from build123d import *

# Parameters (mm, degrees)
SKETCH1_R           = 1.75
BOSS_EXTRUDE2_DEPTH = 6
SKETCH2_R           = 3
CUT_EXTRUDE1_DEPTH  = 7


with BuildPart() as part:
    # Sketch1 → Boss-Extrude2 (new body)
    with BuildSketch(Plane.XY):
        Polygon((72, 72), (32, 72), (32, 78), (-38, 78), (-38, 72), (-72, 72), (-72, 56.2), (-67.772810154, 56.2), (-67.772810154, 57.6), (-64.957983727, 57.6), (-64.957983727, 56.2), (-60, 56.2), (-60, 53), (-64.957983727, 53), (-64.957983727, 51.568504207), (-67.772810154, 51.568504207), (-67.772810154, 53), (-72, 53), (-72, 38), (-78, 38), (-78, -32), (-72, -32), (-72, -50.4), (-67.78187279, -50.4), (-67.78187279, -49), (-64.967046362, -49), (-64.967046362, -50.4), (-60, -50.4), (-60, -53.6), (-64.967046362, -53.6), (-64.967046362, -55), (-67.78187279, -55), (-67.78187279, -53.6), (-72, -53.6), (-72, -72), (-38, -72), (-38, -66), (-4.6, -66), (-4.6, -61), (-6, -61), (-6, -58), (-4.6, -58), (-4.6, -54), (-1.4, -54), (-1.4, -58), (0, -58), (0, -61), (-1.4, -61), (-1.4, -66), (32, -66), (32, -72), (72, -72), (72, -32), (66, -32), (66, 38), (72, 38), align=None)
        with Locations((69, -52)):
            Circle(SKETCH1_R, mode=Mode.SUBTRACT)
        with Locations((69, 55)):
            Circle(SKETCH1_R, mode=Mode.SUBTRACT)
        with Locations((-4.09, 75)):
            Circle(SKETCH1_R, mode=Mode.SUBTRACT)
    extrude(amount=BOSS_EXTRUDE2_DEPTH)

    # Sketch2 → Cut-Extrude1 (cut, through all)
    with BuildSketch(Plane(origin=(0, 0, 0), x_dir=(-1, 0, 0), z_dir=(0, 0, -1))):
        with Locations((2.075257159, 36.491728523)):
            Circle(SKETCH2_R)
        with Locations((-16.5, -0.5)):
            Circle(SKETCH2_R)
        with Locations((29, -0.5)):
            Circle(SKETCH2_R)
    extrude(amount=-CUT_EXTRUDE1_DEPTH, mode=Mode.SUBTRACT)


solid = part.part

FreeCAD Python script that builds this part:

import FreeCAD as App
import Part
import Sketcher

V = App.Vector
Q = App.Units.Quantity

doc = App.newDocument("Part")
body = doc.addObject("PartDesign::Body", "Body")

sketch1 = body.newObject("Sketcher::SketchObject", "Sketch")
sketch1.AttachmentSupport = (doc.getObject("XY_Plane"), [""])
sketch1.MapMode = "FlatFace"
sketch1.addGeometry(Part.LineSegment(V(72, 72, 0), V(32, 72, 0)), False)
sketch1.addGeometry(Part.LineSegment(V(32, 72, 0), V(32, 78, 0)), False)
sketch1.addGeometry(Part.LineSegment(V(32, 78, 0), V(-38, 78, 0)), False)
sketch1.addGeometry(Part.LineSegment(V(-38, 78, 0), V(-38, 72, 0)), False)
sketch1.addGeometry(Part.LineSegment(V(-38, 72, 0), V(-72, 72, 0)), False)
sketch1.addGeometry(Part.LineSegment(V(-72, 72, 0), V(-72, 56.2, 0)), False)
sketch1.addGeometry(Part.LineSegment(V(-72, 56.2, 0), V(-67.8, 56.2, 0)), False)
sketch1.addGeometry(Part.LineSegment(V(-67.8, 56.2, 0), V(-67.8, 57.6, 0)), False)
sketch1.addGeometry(Part.LineSegment(V(-67.8, 57.6, 0), V(-65, 57.6, 0)), False)
sketch1.addGeometry(Part.LineSegment(V(-65, 57.6, 0), V(-65, 56.2, 0)), False)
sketch1.addGeometry(Part.LineSegment(V(-65, 56.2, 0), V(-60, 56.2, 0)), False)
sketch1.addGeometry(Part.LineSegment(V(-60, 56.2, 0), V(-60, 53, 0)), False)
sketch1.addGeometry(Part.LineSegment(V(-60, 53, 0), V(-65, 53, 0)), False)
sketch1.addGeometry(Part.LineSegment(V(-65, 53, 0), V(-65, 51.6, 0)), False)
sketch1.addGeometry(Part.LineSegment(V(-65, 51.6, 0), V(-67.8, 51.6, 0)), False)
sketch1.addGeometry(Part.LineSegment(V(-67.8, 51.6, 0), V(-67.8, 53, 0)), False)
sketch1.addGeometry(Part.LineSegment(V(-67.8, 53, 0), V(-72, 53, 0)), False)
sketch1.addGeometry(Part.LineSegment(V(-72, 53, 0), V(-72, 38, 0)), False)
sketch1.addGeometry(Part.LineSegment(V(-72, 38, 0), V(-78, 38, 0)), False)
sketch1.addGeometry(Part.LineSegment(V(-78, 38, 0), V(-78, -32, 0)), False)
sketch1.addGeometry(Part.LineSegment(V(-78, -32, 0), V(-72, -32, 0)), False)
sketch1.addGeometry(Part.LineSegment(V(-72, -32, 0), V(-72, -50.4, 0)), False)
sketch1.addGeometry(Part.LineSegment(V(-72, -50.4, 0), V(-67.8, -50.4, 0)), False)
sketch1.addGeometry(Part.LineSegment(V(-67.8, -50.4, 0), V(-67.8, -49, 0)), False)
sketch1.addGeometry(Part.LineSegment(V(-67.8, -49, 0), V(-65, -49, 0)), False)
sketch1.addGeometry(Part.LineSegment(V(-65, -49, 0), V(-65, -50.4, 0)), False)
sketch1.addGeometry(Part.LineSegment(V(-65, -50.4, 0), V(-60, -50.4, 0)), False)
sketch1.addGeometry(Part.LineSegment(V(-60, -50.4, 0), V(-60, -53.6, 0)), False)
sketch1.addGeometry(Part.LineSegment(V(-60, -53.6, 0), V(-65, -53.6, 0)), False)
sketch1.addGeometry(Part.LineSegment(V(-65, -53.6, 0), V(-65, -55, 0)), False)
sketch1.addGeometry(Part.LineSegment(V(-65, -55, 0), V(-67.8, -55, 0)), False)
sketch1.addGeometry(Part.LineSegment(V(-67.8, -55, 0), V(-67.8, -53.6, 0)), False)
sketch1.addGeometry(Part.LineSegment(V(-67.8, -53.6, 0), V(-72, -53.6, 0)), False)
sketch1.addGeometry(Part.LineSegment(V(-72, -53.6, 0), V(-72, -72, 0)), False)
sketch1.addGeometry(Part.LineSegment(V(-72, -72, 0), V(-38, -72, 0)), False)
sketch1.addGeometry(Part.LineSegment(V(-38, -72, 0), V(-38, -66, 0)), False)
sketch1.addGeometry(Part.LineSegment(V(-38, -66, 0), V(-4.6, -66, 0)), False)
sketch1.addGeometry(Part.LineSegment(V(-4.6, -66, 0), V(-4.6, -61, 0)), False)
sketch1.addGeometry(Part.LineSegment(V(-4.6, -61, 0), V(-6, -61, 0)), False)
sketch1.addGeometry(Part.LineSegment(V(-6, -61, 0), V(-6, -58, 0)), False)
sketch1.addGeometry(Part.LineSegment(V(-6, -58, 0), V(-4.6, -58, 0)), False)
sketch1.addGeometry(Part.LineSegment(V(-4.6, -58, 0), V(-4.6, -54, 0)), False)
sketch1.addGeometry(Part.LineSegment(V(-4.6, -54, 0), V(-1.4, -54, 0)), False)
sketch1.addGeometry(Part.LineSegment(V(-1.4, -54, 0), V(-1.4, -58, 0)), False)
sketch1.addGeometry(Part.LineSegment(V(-1.4, -58, 0), V(0, -58, 0)), False)
sketch1.addGeometry(Part.LineSegment(V(0, -58, 0), V(0, -61, 0)), False)
sketch1.addGeometry(Part.LineSegment(V(0, -61, 0), V(-1.4, -61, 0)), False)
sketch1.addGeometry(Part.LineSegment(V(-1.4, -61, 0), V(-1.4, -66, 0)), False)
sketch1.addGeometry(Part.LineSegment(V(-1.4, -66, 0), V(32, -66, 0)), False)
sketch1.addGeometry(Part.LineSegment(V(32, -66, 0), V(32, -72, 0)), False)
sketch1.addGeometry(Part.LineSegment(V(32, -72, 0), V(72, -72, 0)), False)
sketch1.addGeometry(Part.LineSegment(V(72, -72, 0), V(72, -32, 0)), False)
sketch1.addGeometry(Part.LineSegment(V(72, -32, 0), V(66, -32, 0)), False)
sketch1.addGeometry(Part.LineSegment(V(66, -32, 0), V(66, 38, 0)), False)
sketch1.addGeometry(Part.LineSegment(V(66, 38, 0), V(72, 38, 0)), False)
sketch1.addGeometry(Part.LineSegment(V(72, 38, 0), V(72, 72, 0)), False)
sketch1.addGeometry(Part.Circle(V(69, -52, 0), V(0, 0, 1), 1.8), False)
sketch1.addGeometry(Part.Circle(V(-4.1, 75, 0), V(0, 0, 1), 1.8), False)
sketch1.addGeometry(Part.Circle(V(69, 55, 0), V(0, 0, 1), 1.8), False)
sketch1.addConstraint(Sketcher.Constraint("Coincident", 0, 2, 1, 1))
sketch1.addConstraint(Sketcher.Constraint("Coincident", 1, 2, 2, 1))
sketch1.addConstraint(Sketcher.Constraint("Coincident", 2, 2, 3, 1))
sketch1.addConstraint(Sketcher.Constraint("Coincident", 3, 2, 4, 1))
sketch1.addConstraint(Sketcher.Constraint("Coincident", 4, 2, 5, 1))
sketch1.addConstraint(Sketcher.Constraint("Coincident", 5, 2, 6, 1))
sketch1.addConstraint(Sketcher.Constraint("Coincident", 6, 2, 7, 1))
sketch1.addConstraint(Sketcher.Constraint("Coincident", 7, 2, 8, 1))
sketch1.addConstraint(Sketcher.Constraint("Coincident", 8, 2, 9, 1))
sketch1.addConstraint(Sketcher.Constraint("Coincident", 9, 2, 10, 1))
sketch1.addConstraint(Sketcher.Constraint("Coincident", 10, 2, 11, 1))
sketch1.addConstraint(Sketcher.Constraint("Coincident", 11, 2, 12, 1))
sketch1.addConstraint(Sketcher.Constraint("Coincident", 12, 2, 13, 1))
sketch1.addConstraint(Sketcher.Constraint("Coincident", 13, 2, 14, 1))
sketch1.addConstraint(Sketcher.Constraint("Coincident", 14, 2, 15, 1))
sketch1.addConstraint(Sketcher.Constraint("Coincident", 15, 2, 16, 1))
sketch1.addConstraint(Sketcher.Constraint("Coincident", 16, 2, 17, 1))
sketch1.addConstraint(Sketcher.Constraint("Coincident", 17, 2, 18, 1))
sketch1.addConstraint(Sketcher.Constraint("Coincident", 18, 2, 19, 1))
sketch1.addConstraint(Sketcher.Constraint("Coincident", 19, 2, 20, 1))
sketch1.addConstraint(Sketcher.Constraint("Coincident", 20, 2, 21, 1))
sketch1.addConstraint(Sketcher.Constraint("Coincident", 21, 2, 22, 1))
sketch1.addConstraint(Sketcher.Constraint("Coincident", 22, 2, 23, 1))
sketch1.addConstraint(Sketcher.Constraint("Coincident", 23, 2, 24, 1))
sketch1.addConstraint(Sketcher.Constraint("Coincident", 24, 2, 25, 1))
sketch1.addConstraint(Sketcher.Constraint("Coincident", 25, 2, 26, 1))
sketch1.addConstraint(Sketcher.Constraint("Coincident", 26, 2, 27, 1))
sketch1.addConstraint(Sketcher.Constraint("Coincident", 27, 2, 28, 1))
sketch1.addConstraint(Sketcher.Constraint("Coincident", 28, 2, 29, 1))
sketch1.addConstraint(Sketcher.Constraint("Coincident", 29, 2, 30, 1))
sketch1.addConstraint(Sketcher.Constraint("Coincident", 30, 2, 31, 1))
sketch1.addConstraint(Sketcher.Constraint("Coincident", 31, 2, 32, 1))
sketch1.addConstraint(Sketcher.Constraint("Coincident", 32, 2, 33, 1))
sketch1.addConstraint(Sketcher.Constraint("Coincident", 33, 2, 34, 1))
sketch1.addConstraint(Sketcher.Constraint("Coincident", 34, 2, 35, 1))
sketch1.addConstraint(Sketcher.Constraint("Coincident", 35, 2, 36, 1))
sketch1.addConstraint(Sketcher.Constraint("Coincident", 36, 2, 37, 1))
sketch1.addConstraint(Sketcher.Constraint("Coincident", 37, 2, 38, 1))
sketch1.addConstraint(Sketcher.Constraint("Coincident", 38, 2, 39, 1))
sketch1.addConstraint(Sketcher.Constraint("Coincident", 39, 2, 40, 1))
sketch1.addConstraint(Sketcher.Constraint("Coincident", 40, 2, 41, 1))
sketch1.addConstraint(Sketcher.Constraint("Coincident", 41, 2, 42, 1))
sketch1.addConstraint(Sketcher.Constraint("Coincident", 42, 2, 43, 1))
sketch1.addConstraint(Sketcher.Constraint("Coincident", 43, 2, 44, 1))
sketch1.addConstraint(Sketcher.Constraint("Coincident", 44, 2, 45, 1))
sketch1.addConstraint(Sketcher.Constraint("Coincident", 45, 2, 46, 1))
sketch1.addConstraint(Sketcher.Constraint("Coincident", 46, 2, 47, 1))
sketch1.addConstraint(Sketcher.Constraint("Coincident", 47, 2, 48, 1))
sketch1.addConstraint(Sketcher.Constraint("Coincident", 48, 2, 49, 1))
sketch1.addConstraint(Sketcher.Constraint("Coincident", 49, 2, 50, 1))
sketch1.addConstraint(Sketcher.Constraint("Coincident", 50, 2, 51, 1))
sketch1.addConstraint(Sketcher.Constraint("Coincident", 51, 2, 52, 1))
sketch1.addConstraint(Sketcher.Constraint("Coincident", 52, 2, 53, 1))
sketch1.addConstraint(Sketcher.Constraint("Coincident", 53, 2, 54, 1))
sketch1.addConstraint(Sketcher.Constraint("Coincident", 54, 2, 55, 1))
sketch1.addConstraint(Sketcher.Constraint("Coincident", 55, 2, 0, 1))
sketch1.addConstraint(Sketcher.Constraint("Horizontal", 0))
sketch1.addConstraint(Sketcher.Constraint("Vertical", 1))
sketch1.addConstraint(Sketcher.Constraint("Horizontal", 2))
sketch1.addConstraint(Sketcher.Constraint("Vertical", 3))
sketch1.addConstraint(Sketcher.Constraint("Horizontal", 4))
sketch1.addConstraint(Sketcher.Constraint("Vertical", 5))
sketch1.addConstraint(Sketcher.Constraint("Horizontal", 6))
sketch1.addConstraint(Sketcher.Constraint("Vertical", 7))
sketch1.addConstraint(Sketcher.Constraint("Horizontal", 8))
sketch1.addConstraint(Sketcher.Constraint("Vertical", 9))
sketch1.addConstraint(Sketcher.Constraint("Horizontal", 10))
sketch1.addConstraint(Sketcher.Constraint("Vertical", 11))
sketch1.addConstraint(Sketcher.Constraint("Horizontal", 12))
sketch1.addConstraint(Sketcher.Constraint("Vertical", 13))
sketch1.addConstraint(Sketcher.Constraint("Horizontal", 14))
sketch1.addConstraint(Sketcher.Constraint("Vertical", 15))
sketch1.addConstraint(Sketcher.Constraint("Horizontal", 16))
sketch1.addConstraint(Sketcher.Constraint("Vertical", 17))
sketch1.addConstraint(Sketcher.Constraint("Horizontal", 18))
sketch1.addConstraint(Sketcher.Constraint("Vertical", 19))
sketch1.addConstraint(Sketcher.Constraint("Horizontal", 20))
sketch1.addConstraint(Sketcher.Constraint("Vertical", 21))
sketch1.addConstraint(Sketcher.Constraint("Horizontal", 22))
sketch1.addConstraint(Sketcher.Constraint("Vertical", 23))
sketch1.addConstraint(Sketcher.Constraint("Horizontal", 24))
sketch1.addConstraint(Sketcher.Constraint("Vertical", 25))
sketch1.addConstraint(Sketcher.Constraint("Horizontal", 26))
sketch1.addConstraint(Sketcher.Constraint("Vertical", 27))
sketch1.addConstraint(Sketcher.Constraint("Horizontal", 28))
sketch1.addConstraint(Sketcher.Constraint("Vertical", 29))
sketch1.addConstraint(Sketcher.Constraint("Horizontal", 30))
sketch1.addConstraint(Sketcher.Constraint("Vertical", 31))
sketch1.addConstraint(Sketcher.Constraint("Horizontal", 32))
sketch1.addConstraint(Sketcher.Constraint("Vertical", 33))
sketch1.addConstraint(Sketcher.Constraint("Horizontal", 34))
sketch1.addConstraint(Sketcher.Constraint("Vertical", 35))
sketch1.addConstraint(Sketcher.Constraint("Horizontal", 36))
sketch1.addConstraint(Sketcher.Constraint("Vertical", 37))
sketch1.addConstraint(Sketcher.Constraint("Horizontal", 38))
sketch1.addConstraint(Sketcher.Constraint("Vertical", 39))
sketch1.addConstraint(Sketcher.Constraint("Horizontal", 40))
sketch1.addConstraint(Sketcher.Constraint("Vertical", 41))
sketch1.addConstraint(Sketcher.Constraint("Horizontal", 42))
sketch1.addConstraint(Sketcher.Constraint("Vertical", 43))
sketch1.addConstraint(Sketcher.Constraint("Horizontal", 44))
sketch1.addConstraint(Sketcher.Constraint("Vertical", 45))
sketch1.addConstraint(Sketcher.Constraint("Horizontal", 46))
sketch1.addConstraint(Sketcher.Constraint("Vertical", 47))
sketch1.addConstraint(Sketcher.Constraint("Horizontal", 48))
sketch1.addConstraint(Sketcher.Constraint("Vertical", 49))
sketch1.addConstraint(Sketcher.Constraint("Horizontal", 50))
sketch1.addConstraint(Sketcher.Constraint("Vertical", 51))
sketch1.addConstraint(Sketcher.Constraint("Horizontal", 52))
sketch1.addConstraint(Sketcher.Constraint("Vertical", 53))
sketch1.addConstraint(Sketcher.Constraint("Horizontal", 54))
sketch1.addConstraint(Sketcher.Constraint("Vertical", 55))
sketch1.addConstraint(Sketcher.Constraint("Equal", 56, 57))
sketch1.addConstraint(Sketcher.Constraint("Equal", 57, 58))
sketch1.addConstraint(Sketcher.Constraint("Symmetric", 4, 2, 50, 2, -1, 1))
sketch1.addConstraint(Sketcher.Constraint("Symmetric", 33, 2, 55, 2, -1, 1))
sketch1.addConstraint(Sketcher.Constraint("Symmetric", 33, 2, 50, 2, -2))
sketch1.addConstraint(Sketcher.Constraint("Symmetric", 20, 2, 51, 2, -2))
sketch1.addConstraint(Sketcher.Constraint("Symmetric", 17, 2, 54, 2, -2))
sketch1.addConstraint(Sketcher.Constraint("PointOnObject", 44, 2, -2))
sketch1.addConstraint(Sketcher.Constraint("Horizontal", 6, 2, 9, 2))
sketch1.addConstraint(Sketcher.Constraint("Horizontal", 12, 2, 15, 2))
sketch1.addConstraint(Sketcher.Constraint("Horizontal", 22, 2, 25, 2))
sketch1.addConstraint(Sketcher.Constraint("Horizontal", 28, 2, 31, 2))
sketch1.addConstraint(Sketcher.Constraint("Horizontal", 40, 2, 43, 2))
sketch1.addConstraint(Sketcher.Constraint("Horizontal", 38, 2, 45, 2))
sketch1.addConstraint(Sketcher.Constraint("Horizontal", 36, 2, 47, 2))
sketch1.addConstraint(Sketcher.Constraint("Vertical", 56, 3, 58, 3))
sketch1.addConstraint(Sketcher.Constraint("Vertical", 9, 2, 12, 2))
sketch1.addConstraint(Sketcher.Constraint("Vertical", 7, 2, 14, 2))
sketch1.addConstraint(Sketcher.Constraint("Vertical", 11, 2, 26, 2))
sketch1.addConstraint(Sketcher.Constraint("Vertical", 25, 2, 28, 2))
sketch1.addConstraint(Sketcher.Constraint("Vertical", 23, 2, 30, 2))
sketch1.addConstraint(Sketcher.Constraint("Vertical", 3, 2, 34, 2))
sketch1.addConstraint(Sketcher.Constraint("Vertical", 37, 2, 40, 2))
sketch1.addConstraint(Sketcher.Constraint("Vertical", 43, 2, 46, 2))
sketch1.addConstraint(Sketcher.Constraint("Vertical", 1, 2, 48, 2))
sketch1.addConstraint(Sketcher.Constraint("Equal", 14, 24))
sketch1.addConstraint(Sketcher.Constraint("Equal", 40, 44))
sketch1.addConstraint(Sketcher.Constraint("Equal", 36, 48))
sketch1.addConstraint(Sketcher.Constraint("Equal", 20, 52))
sketch1.addConstraint(Sketcher.Constraint("Equal", 54, 1))
sketch1.addConstraint(Sketcher.Constraint("Equal", 46, 7))
sketch1.addConstraint(Sketcher.Constraint("Equal", 42, 11))
sketch1.addConstraint(Sketcher.Constraint("Equal", 2, 19))
sketch1.addConstraint(Sketcher.Constraint("Equal", 9, 23))
sketch1.addConstraint(Sketcher.Constraint("Equal", 11, 27))
sketch1.addConstraint(Sketcher.Constraint("Equal", 25, 29))
sketch1.addConstraint(Sketcher.Constraint("Equal", 21, 33))
sketch1.addConstraint(Sketcher.Constraint("Equal", 3, 35))
sketch1.addConstraint(Sketcher.Constraint("Equal", 50, 51))
sketch1.addConstraint(Sketcher.Constraint("Equal", 34, 55))
sketch1.addConstraint(Sketcher.Constraint("Diameter", 56, Q("3.5 mm")))
sketch1.addConstraint(Sketcher.Constraint("DistanceX", 0, 2, 0, 1, Q("40 mm")))
sketch1.addConstraint(Sketcher.Constraint("DistanceX", 2, 2, 2, 1, Q("70 mm")))
sketch1.addConstraint(Sketcher.Constraint("DistanceX", 4, 2, 4, 1, Q("34 mm")))
sketch1.addConstraint(Sketcher.Constraint("DistanceX", 18, 2, 18, 1, Q("6 mm")))
sketch1.addConstraint(Sketcher.Constraint("DistanceY", 17, 2, 17, 1, Q("15 mm")))
sketch1.addConstraint(Sketcher.Constraint("DistanceY", 37, 1, 37, 2, Q("5 mm")))
sketch1.addConstraint(Sketcher.Constraint("DistanceY", 39, 1, 39, 2, Q("3 mm")))
sketch1.addConstraint(Sketcher.Constraint("DistanceY", 41, 1, 41, 2, Q("4 mm")))
sketch1.addConstraint(Sketcher.Constraint("DistanceX", 36, 1, 36, 2, Q("33.4 mm")))
sketch1.addConstraint(Sketcher.Constraint("DistanceX", -1, 1, 56, 3, Q("69 mm")))
sketch1.addConstraint(Sketcher.Constraint("DistanceY", 56, 3, -1, 1, Q("52 mm")))
sketch1.addConstraint(Sketcher.Constraint("DistanceY", -1, 1, 57, 3, Q("75 mm")))
sketch1.addConstraint(Sketcher.Constraint("DistanceY", -1, 1, 58, 3, Q("55 mm")))
sketch1.addConstraint(Sketcher.Constraint("DistanceX", 10, 2, -1, 1, Q("60 mm")))
sketch1.addConstraint(Sketcher.Constraint("DistanceX", 57, 3, -1, 1, Q("4.09 mm")))
sketch1.addConstraint(Sketcher.Constraint("DistanceX", 6, 1, 6, 2, Q("4.22719 mm")))
sketch1.addConstraint(Sketcher.Constraint("DistanceX", 8, 1, 8, 2, Q("2.814826 mm")))
sketch1.addConstraint(Sketcher.Constraint("DistanceX", 22, 1, 22, 2, Q("4.218127 mm")))
sketch1.addConstraint(Sketcher.Constraint("DistanceY", 13, 2, 13, 1, Q("1.431496 mm")))
pad1 = body.newObject("PartDesign::Pad", "Pad")
pad1.Profile = sketch1
pad1.Length = 6

sketch2 = body.newObject("Sketcher::SketchObject", "Sketch001")
sketch2.AttachmentSupport = (doc.getObject("XY_Plane"), [""])
sketch2.MapMode = "FlatFace"
sketch2.addGeometry(Part.Circle(V(-2.1, 36.5, 0), V(0, 0, 1), 3), False)
sketch2.addGeometry(Part.Circle(V(16.5, -0.5, 0), V(0, 0, 1), 3), False)
sketch2.addGeometry(Part.Circle(V(-29, -0.5, 0), V(0, 0, 1), 3), False)
sketch2.addConstraint(Sketcher.Constraint("Equal", 0, 1))
sketch2.addConstraint(Sketcher.Constraint("Equal", 1, 2))
sketch2.addConstraint(Sketcher.Constraint("Horizontal", 1, 3, 2, 3))
sketch2.addConstraint(Sketcher.Constraint("Diameter", 0, Q("6 mm")))
sketch2.addConstraint(Sketcher.Constraint("DistanceX", 2, 3, -1, 1, Q("29 mm")))
sketch2.addConstraint(Sketcher.Constraint("DistanceX", -1, 1, 1, 3, Q("16.5 mm")))
sketch2.addConstraint(Sketcher.Constraint("DistanceY", 1, 3, -1, 1, Q("0.5 mm")))
sketch2.addConstraint(Sketcher.Constraint("DistanceY", -1, 1, 0, 3, Q("36.491729 mm")))
sketch2.addConstraint(Sketcher.Constraint("DistanceX", 0, 3, -1, 1, Q("2.075257 mm")))
pocket1 = body.newObject("PartDesign::Pocket", "Pocket")
pocket1.Profile = sketch2
pocket1.Type = "ThroughAll"
pocket1.Reversed = True

doc.recompute()
